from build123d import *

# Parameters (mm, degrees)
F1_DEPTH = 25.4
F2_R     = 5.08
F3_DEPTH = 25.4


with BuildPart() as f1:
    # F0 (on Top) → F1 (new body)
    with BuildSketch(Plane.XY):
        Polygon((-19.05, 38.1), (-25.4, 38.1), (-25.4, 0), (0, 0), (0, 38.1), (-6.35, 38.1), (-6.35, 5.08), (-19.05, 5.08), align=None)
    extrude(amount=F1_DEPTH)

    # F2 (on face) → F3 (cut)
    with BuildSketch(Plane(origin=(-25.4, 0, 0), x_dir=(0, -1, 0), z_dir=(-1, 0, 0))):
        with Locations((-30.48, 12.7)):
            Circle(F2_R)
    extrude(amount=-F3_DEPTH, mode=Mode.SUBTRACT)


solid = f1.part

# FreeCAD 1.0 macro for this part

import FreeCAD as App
import Part
import Sketcher
from FreeCAD import Vector
Q = App.Units.Quantity


def add_polygon(sketch, points):
    """Adds a closed chain of lines whose ends are joined by coincident constraints."""
    first, n = sketch.GeometryCount, len(points)
    for a, b in zip(points, points[1:] + points[:1]):
        sketch.addGeometry(Part.LineSegment(App.Vector(*a, 0), App.Vector(*b, 0)), False)
    for i in range(n):
        sketch.addConstraint(Sketcher.Constraint("Coincident", first + i, 2, first + (i + 1) % n, 1))

doc = App.newDocument("Part")
params = doc.addObject("Spreadsheet::Sheet", "Params")
for row, (alias, value) in enumerate([
    ("sketch1_width", "1 in"),
    ("sketch1_width2", "0.5 in"),
    ("sketch1_height", "1.5 in"),
    ("sketch1_height2", "1.3 in"),
    ("pad1_length", "1 in"),
    ("sketch2_diameter", "0.4 in"),
    ("pocket1_length", "1 in"),
], start=1):
    params.set(f"A{row}", alias)
    params.set(f"B{row}", "=" + value)
    params.setAlias(f"B{row}", alias)

body = doc.addObject("PartDesign::Body", "Body")

# Sketch on XY plane
sketch1 = body.newObject("Sketcher::SketchObject", "Sketch")
sketch1.AttachmentSupport = (doc.getObject("XY_Plane"), [""])
sketch1.MapMode = "FlatFace"
add_polygon(sketch1, [(-19, 38), (-25, 38), (-25, 0), (0, 0), (0, 38), (-6, 38), (-6, 5), (-19, 5)])  # lines 0-7
sketch1.addConstraint([
    Sketcher.Constraint("Horizontal", 0),
    Sketcher.Constraint("Vertical", 1),
    Sketcher.Constraint("Horizontal", 2),
    Sketcher.Constraint("Vertical", 3),
    Sketcher.Constraint("Horizontal", 4),
    Sketcher.Constraint("Vertical", 5),
    Sketcher.Constraint("Horizontal", 6),
    Sketcher.Constraint("Vertical", 7),
    Sketcher.Constraint("Coincident", 2, 2, -1, 1),
    Sketcher.Constraint("Horizontal", 0, 2, 3, 2),
    Sketcher.Constraint("Equal", 0, 4),
    Sketcher.Constraint("DistanceX", 2, 1, 2, 2, Q("1 in")),
    Sketcher.Constraint("DistanceX", 6, 2, 6, 1, Q("0.5 in")),
    Sketcher.Constraint("DistanceY", 1, 2, 1, 1, Q("1.5 in")),
    Sketcher.Constraint("DistanceY", 5, 2, 5, 1, Q("1.3 in")),
])
sketch1.setExpression("Constraints[19]", "Params.sketch1_width")
sketch1.setExpression("Constraints[20]", "Params.sketch1_width2")
sketch1.setExpression("Constraints[21]", "Params.sketch1_height")
sketch1.setExpression("Constraints[22]", "Params.sketch1_height2")
pad1 = body.newObject("PartDesign::Pad", "Pad")
pad1.Profile = sketch1
pad1.setExpression("Length", "Params.pad1_length")

# Sketch on YZ plane
sketch2 = body.newObject("Sketcher::SketchObject", "Sketch001")
sketch2.AttachmentSupport = (doc.getObject("YZ_Plane"), [""])
sketch2.MapMode = "FlatFace"
sketch2.AttachmentOffset = App.Placement(Vector(0, 0, -1 * 25.4), App.Rotation())
sketch2.addGeometry(Part.Circle(Vector(30, 13, 0), Vector(0, 0, 1), 5), False)
sketch2.addConstraint([
    Sketcher.Constraint("Diameter", 0, Q("0.4 in")),
    Sketcher.Constraint("DistanceX", -1, 1, 0, 3, Q("1.2 in")),
    Sketcher.Constraint("DistanceY", -1, 1, 0, 3, Q("0.5 in")),
])
sketch2.setExpression("Constraints[0]", "Params.sketch2_diameter")
pocket1 = body.newObject("PartDesign::Pocket", "Pocket")
pocket1.Profile = sketch2
pocket1.setExpression("Length", "Params.pocket1_length")
pocket1.Reversed = True

doc.recompute()
